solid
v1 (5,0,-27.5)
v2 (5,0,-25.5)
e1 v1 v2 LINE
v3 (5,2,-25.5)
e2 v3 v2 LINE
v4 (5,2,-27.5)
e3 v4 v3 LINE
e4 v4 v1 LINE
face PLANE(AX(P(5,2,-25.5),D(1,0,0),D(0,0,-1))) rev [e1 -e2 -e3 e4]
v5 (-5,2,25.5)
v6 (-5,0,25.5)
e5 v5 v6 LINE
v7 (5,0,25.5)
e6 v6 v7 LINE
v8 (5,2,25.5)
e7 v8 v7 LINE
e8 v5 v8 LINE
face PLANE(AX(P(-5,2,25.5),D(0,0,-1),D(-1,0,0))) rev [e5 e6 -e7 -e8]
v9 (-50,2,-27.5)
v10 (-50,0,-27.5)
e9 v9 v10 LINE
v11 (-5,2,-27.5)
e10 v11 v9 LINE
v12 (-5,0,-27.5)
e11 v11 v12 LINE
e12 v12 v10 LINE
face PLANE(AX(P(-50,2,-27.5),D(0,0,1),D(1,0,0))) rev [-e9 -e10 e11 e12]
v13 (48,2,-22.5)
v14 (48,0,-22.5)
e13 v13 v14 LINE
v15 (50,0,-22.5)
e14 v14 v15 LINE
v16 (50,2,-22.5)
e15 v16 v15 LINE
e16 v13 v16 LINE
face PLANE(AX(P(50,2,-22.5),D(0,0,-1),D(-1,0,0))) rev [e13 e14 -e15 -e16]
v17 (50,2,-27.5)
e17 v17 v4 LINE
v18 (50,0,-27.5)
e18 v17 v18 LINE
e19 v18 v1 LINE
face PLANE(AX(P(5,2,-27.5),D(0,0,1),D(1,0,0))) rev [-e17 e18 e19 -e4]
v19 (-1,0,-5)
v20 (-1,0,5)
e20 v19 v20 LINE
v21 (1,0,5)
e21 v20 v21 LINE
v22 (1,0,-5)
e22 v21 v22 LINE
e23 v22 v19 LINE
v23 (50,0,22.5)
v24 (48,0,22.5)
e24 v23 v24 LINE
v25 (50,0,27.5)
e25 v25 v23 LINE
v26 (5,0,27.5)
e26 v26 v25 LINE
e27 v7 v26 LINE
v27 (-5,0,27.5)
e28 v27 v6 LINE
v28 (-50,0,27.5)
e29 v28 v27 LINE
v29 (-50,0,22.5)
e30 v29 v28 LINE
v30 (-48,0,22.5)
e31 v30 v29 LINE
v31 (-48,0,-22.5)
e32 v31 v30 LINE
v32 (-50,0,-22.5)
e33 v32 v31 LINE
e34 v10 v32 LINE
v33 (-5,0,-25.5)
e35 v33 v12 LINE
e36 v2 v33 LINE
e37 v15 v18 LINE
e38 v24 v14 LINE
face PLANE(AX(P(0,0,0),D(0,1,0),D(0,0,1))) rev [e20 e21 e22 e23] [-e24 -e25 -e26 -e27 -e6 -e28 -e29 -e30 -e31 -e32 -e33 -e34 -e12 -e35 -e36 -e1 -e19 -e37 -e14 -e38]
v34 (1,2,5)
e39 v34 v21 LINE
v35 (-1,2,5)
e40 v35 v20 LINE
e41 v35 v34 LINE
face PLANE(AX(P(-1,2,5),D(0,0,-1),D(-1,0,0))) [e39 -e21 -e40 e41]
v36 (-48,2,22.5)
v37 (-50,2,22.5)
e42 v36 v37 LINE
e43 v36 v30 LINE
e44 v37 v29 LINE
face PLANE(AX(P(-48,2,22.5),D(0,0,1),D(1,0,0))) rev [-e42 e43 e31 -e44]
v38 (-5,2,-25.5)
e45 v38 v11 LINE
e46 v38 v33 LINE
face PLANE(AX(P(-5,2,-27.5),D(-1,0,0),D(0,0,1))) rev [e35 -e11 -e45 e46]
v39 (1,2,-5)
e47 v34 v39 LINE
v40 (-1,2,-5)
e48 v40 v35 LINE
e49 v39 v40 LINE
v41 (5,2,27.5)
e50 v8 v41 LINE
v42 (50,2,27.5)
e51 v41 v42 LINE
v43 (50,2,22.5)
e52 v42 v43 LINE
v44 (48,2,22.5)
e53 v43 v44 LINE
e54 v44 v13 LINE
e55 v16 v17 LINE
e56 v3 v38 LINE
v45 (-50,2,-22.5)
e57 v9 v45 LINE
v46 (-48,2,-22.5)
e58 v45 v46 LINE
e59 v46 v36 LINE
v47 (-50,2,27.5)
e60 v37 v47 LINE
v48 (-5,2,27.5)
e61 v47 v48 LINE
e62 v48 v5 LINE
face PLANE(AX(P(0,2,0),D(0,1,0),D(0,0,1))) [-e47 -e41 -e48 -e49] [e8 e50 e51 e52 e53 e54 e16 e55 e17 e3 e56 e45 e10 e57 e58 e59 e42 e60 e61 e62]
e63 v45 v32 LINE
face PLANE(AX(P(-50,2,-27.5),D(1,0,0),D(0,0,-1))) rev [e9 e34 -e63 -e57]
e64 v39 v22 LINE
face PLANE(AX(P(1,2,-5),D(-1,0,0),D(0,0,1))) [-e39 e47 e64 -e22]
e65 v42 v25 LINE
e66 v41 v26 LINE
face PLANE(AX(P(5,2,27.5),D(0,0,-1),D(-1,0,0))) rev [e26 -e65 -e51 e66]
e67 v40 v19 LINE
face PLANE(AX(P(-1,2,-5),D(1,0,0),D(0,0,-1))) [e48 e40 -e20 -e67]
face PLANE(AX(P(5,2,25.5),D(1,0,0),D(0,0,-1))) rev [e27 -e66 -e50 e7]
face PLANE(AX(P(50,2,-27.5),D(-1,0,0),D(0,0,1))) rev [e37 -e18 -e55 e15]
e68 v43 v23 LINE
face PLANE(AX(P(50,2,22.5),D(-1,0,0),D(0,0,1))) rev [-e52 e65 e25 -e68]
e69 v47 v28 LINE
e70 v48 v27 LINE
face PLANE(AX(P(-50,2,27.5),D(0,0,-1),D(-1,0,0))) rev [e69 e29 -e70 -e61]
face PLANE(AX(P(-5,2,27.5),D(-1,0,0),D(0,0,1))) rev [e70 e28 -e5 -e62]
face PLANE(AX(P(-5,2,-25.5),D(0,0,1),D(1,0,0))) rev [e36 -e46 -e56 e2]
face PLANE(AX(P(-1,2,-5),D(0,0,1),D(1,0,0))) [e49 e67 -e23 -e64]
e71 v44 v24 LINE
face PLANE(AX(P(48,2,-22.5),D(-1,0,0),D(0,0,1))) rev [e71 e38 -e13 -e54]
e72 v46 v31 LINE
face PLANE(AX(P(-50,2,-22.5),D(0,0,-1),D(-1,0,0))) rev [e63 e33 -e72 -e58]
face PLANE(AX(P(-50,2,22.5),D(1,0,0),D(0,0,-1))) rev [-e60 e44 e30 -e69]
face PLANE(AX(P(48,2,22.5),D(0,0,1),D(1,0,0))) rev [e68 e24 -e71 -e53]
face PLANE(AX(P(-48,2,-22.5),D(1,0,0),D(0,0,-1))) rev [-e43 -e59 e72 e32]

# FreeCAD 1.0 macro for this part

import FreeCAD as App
import Part
import Sketcher
Q = App.Units.Quantity

doc = App.newDocument("Part")
body = doc.addObject("PartDesign::Body", "Body")

sketch1 = body.newObject("Sketcher::SketchObject", "Sketch")
sketch1.AttachmentSupport = (doc.getObject("XZ_Plane"), [""])
sketch1.MapMode = "FlatFace"
sketch1.addGeometry([
    Part.LineSegment(App.Vector(-50, -22.5, 0), App.Vector(-48, -22.5, 0)),
    Part.LineSegment(App.Vector(-48, -22.5, 0), App.Vector(-48, 22.5, 0)),
    Part.LineSegment(App.Vector(-48, 22.5, 0), App.Vector(-50, 22.5, 0)),
    Part.LineSegment(App.Vector(-50, 22.5, 0), App.Vector(-50, 27.5, 0)),
    Part.LineSegment(App.Vector(-50, 27.5, 0), App.Vector(-5, 27.5, 0)),
    Part.LineSegment(App.Vector(-5, 27.5, 0), App.Vector(-5, 25.5, 0)),
    Part.LineSegment(App.Vector(-5, 25.5, 0), App.Vector(5, 25.5, 0)),
    Part.LineSegment(App.Vector(5, 25.5, 0), App.Vector(5, 27.5, 0)),
    Part.LineSegment(App.Vector(5, 27.5, 0), App.Vector(50, 27.5, 0)),
    Part.LineSegment(App.Vector(50, 27.5, 0), App.Vector(50, 22.5, 0)),
    Part.LineSegment(App.Vector(50, 22.5, 0), App.Vector(48, 22.5, 0)),
    Part.LineSegment(App.Vector(48, 22.5, 0), App.Vector(48, -22.5, 0)),
    Part.LineSegment(App.Vector(48, -22.5, 0), App.Vector(50, -22.5, 0)),
    Part.LineSegment(App.Vector(50, -22.5, 0), App.Vector(50, -27.5, 0)),
    Part.LineSegment(App.Vector(50, -27.5, 0), App.Vector(5, -27.5, 0)),
    Part.LineSegment(App.Vector(5, -27.5, 0), App.Vector(5, -25.5, 0)),
    Part.LineSegment(App.Vector(5, -25.5, 0), App.Vector(-5, -25.5, 0)),
    Part.LineSegment(App.Vector(-5, -25.5, 0), App.Vector(-5, -27.5, 0)),
    Part.LineSegment(App.Vector(-5, -27.5, 0), App.Vector(-50, -27.5, 0)),
    Part.LineSegment(App.Vector(-50, -27.5, 0), App.Vector(-50, -22.5, 0)),
    Part.LineSegment(App.Vector(1, 5, 0), App.Vector(-1, 5, 0)),
    Part.LineSegment(App.Vector(-1, 5, 0), App.Vector(-1, -5, 0)),
    Part.LineSegment(App.Vector(-1, -5, 0), App.Vector(1, -5, 0)),
    Part.LineSegment(App.Vector(1, -5, 0), App.Vector(1, 5, 0)),
], False)
sketch1.addConstraint([
    Sketcher.Constraint("Coincident", 0, 2, 1, 1),
    Sketcher.Constraint("Coincident", 1, 2, 2, 1),
    Sketcher.Constraint("Coincident", 2, 2, 3, 1),
    Sketcher.Constraint("Coincident", 3, 2, 4, 1),
    Sketcher.Constraint("Coincident", 4, 2, 5, 1),
    Sketcher.Constraint("Coincident", 5, 2, 6, 1),
    Sketcher.Constraint("Coincident", 6, 2, 7, 1),
    Sketcher.Constraint("Coincident", 7, 2, 8, 1),
    Sketcher.Constraint("Coincident", 8, 2, 9, 1),
    Sketcher.Constraint("Coincident", 9, 2, 10, 1),
    Sketcher.Constraint("Coincident", 10, 2, 11, 1),
    Sketcher.Constraint("Coincident", 11, 2, 12, 1),
    Sketcher.Constraint("Coincident", 12, 2, 13, 1),
    Sketcher.Constraint("Coincident", 13, 2, 14, 1),
    Sketcher.Constraint("Coincident", 14, 2, 15, 1),
    Sketcher.Constraint("Coincident", 15, 2, 16, 1),
    Sketcher.Constraint("Coincident", 16, 2, 17, 1),
    Sketcher.Constraint("Coincident", 17, 2, 18, 1),
    Sketcher.Constraint("Coincident", 18, 2, 19, 1),
    Sketcher.Constraint("Coincident", 19, 2, 0, 1),
    Sketcher.Constraint("Coincident", 20, 2, 21, 1),
    Sketcher.Constraint("Coincident", 21, 2, 22, 1),
    Sketcher.Constraint("Coincident", 22, 2, 23, 1),
    Sketcher.Constraint("Coincident", 23, 2, 20, 1),
    Sketcher.Constraint("Horizontal", 0),
    Sketcher.Constraint("Vertical", 1),
    Sketcher.Constraint("Horizontal", 2),
    Sketcher.Constraint("Vertical", 3),
    Sketcher.Constraint("Horizontal", 4),
    Sketcher.Constraint("Vertical", 5),
    Sketcher.Constraint("Horizontal", 6),
    Sketcher.Constraint("Vertical", 7),
    Sketcher.Constraint("Horizontal", 8),
    Sketcher.Constraint("Vertical", 9),
    Sketcher.Constraint("Horizontal", 10),
    Sketcher.Constraint("Vertical", 11),
    Sketcher.Constraint("Horizontal", 12),
    Sketcher.Constraint("Vertical", 13),
    Sketcher.Constraint("Horizontal", 14),
    Sketcher.Constraint("Vertical", 15),
    Sketcher.Constraint("Horizontal", 16),
    Sketcher.Constraint("Vertical", 17),
    Sketcher.Constraint("Horizontal", 18),
    Sketcher.Constraint("Vertical", 19),
    Sketcher.Constraint("Horizontal", 20),
    Sketcher.Constraint("Vertical", 21),
    Sketcher.Constraint("Horizontal", 22),
    Sketcher.Constraint("Vertical", 23),
    Sketcher.Constraint("Symmetric", 0, 2, 10, 2, -1, 1),
    Sketcher.Constraint("Symmetric", 2, 2, 12, 2, -1, 1),
    Sketcher.Constraint("Symmetric", 4, 2, 14, 2, -1, 1),
    Sketcher.Constraint("Symmetric", 6, 2, 16, 2, -1, 1),
    Sketcher.Constraint("Symmetric", 8, 2, 18, 2, -1, 1),
    Sketcher.Constraint("Symmetric", 20, 2, 22, 2, -1, 1),
    Sketcher.Constraint("Symmetric", 4, 2, 7, 2, -2),
    Sketcher.Constraint("Symmetric", 2, 2, 9, 2, -2),
    Sketcher.Constraint("Equal", 12, 20),
    Sketcher.Constraint("Equal", 18, 1),
    Sketcher.Constraint("Equal", 22, 5),
    Sketcher.Constraint("Equal", 16, 21),
    Sketcher.Constraint("DistanceX", 0, 1, 0, 2, Q("2 mm")),
    Sketcher.Constraint("DistanceX", 4, 1, 4, 2, Q("45 mm")),
    Sketcher.Constraint("DistanceX", 6, 1, 6, 2, Q("10 mm")),
    Sketcher.Constraint("DistanceY", 3, 1, 3, 2, Q("5 mm")),
])
pad1 = body.newObject("PartDesign::Pad", "Pad")
pad1.Profile = sketch1
pad1.Length = 2
pad1.Reversed = True

doc.recompute()
